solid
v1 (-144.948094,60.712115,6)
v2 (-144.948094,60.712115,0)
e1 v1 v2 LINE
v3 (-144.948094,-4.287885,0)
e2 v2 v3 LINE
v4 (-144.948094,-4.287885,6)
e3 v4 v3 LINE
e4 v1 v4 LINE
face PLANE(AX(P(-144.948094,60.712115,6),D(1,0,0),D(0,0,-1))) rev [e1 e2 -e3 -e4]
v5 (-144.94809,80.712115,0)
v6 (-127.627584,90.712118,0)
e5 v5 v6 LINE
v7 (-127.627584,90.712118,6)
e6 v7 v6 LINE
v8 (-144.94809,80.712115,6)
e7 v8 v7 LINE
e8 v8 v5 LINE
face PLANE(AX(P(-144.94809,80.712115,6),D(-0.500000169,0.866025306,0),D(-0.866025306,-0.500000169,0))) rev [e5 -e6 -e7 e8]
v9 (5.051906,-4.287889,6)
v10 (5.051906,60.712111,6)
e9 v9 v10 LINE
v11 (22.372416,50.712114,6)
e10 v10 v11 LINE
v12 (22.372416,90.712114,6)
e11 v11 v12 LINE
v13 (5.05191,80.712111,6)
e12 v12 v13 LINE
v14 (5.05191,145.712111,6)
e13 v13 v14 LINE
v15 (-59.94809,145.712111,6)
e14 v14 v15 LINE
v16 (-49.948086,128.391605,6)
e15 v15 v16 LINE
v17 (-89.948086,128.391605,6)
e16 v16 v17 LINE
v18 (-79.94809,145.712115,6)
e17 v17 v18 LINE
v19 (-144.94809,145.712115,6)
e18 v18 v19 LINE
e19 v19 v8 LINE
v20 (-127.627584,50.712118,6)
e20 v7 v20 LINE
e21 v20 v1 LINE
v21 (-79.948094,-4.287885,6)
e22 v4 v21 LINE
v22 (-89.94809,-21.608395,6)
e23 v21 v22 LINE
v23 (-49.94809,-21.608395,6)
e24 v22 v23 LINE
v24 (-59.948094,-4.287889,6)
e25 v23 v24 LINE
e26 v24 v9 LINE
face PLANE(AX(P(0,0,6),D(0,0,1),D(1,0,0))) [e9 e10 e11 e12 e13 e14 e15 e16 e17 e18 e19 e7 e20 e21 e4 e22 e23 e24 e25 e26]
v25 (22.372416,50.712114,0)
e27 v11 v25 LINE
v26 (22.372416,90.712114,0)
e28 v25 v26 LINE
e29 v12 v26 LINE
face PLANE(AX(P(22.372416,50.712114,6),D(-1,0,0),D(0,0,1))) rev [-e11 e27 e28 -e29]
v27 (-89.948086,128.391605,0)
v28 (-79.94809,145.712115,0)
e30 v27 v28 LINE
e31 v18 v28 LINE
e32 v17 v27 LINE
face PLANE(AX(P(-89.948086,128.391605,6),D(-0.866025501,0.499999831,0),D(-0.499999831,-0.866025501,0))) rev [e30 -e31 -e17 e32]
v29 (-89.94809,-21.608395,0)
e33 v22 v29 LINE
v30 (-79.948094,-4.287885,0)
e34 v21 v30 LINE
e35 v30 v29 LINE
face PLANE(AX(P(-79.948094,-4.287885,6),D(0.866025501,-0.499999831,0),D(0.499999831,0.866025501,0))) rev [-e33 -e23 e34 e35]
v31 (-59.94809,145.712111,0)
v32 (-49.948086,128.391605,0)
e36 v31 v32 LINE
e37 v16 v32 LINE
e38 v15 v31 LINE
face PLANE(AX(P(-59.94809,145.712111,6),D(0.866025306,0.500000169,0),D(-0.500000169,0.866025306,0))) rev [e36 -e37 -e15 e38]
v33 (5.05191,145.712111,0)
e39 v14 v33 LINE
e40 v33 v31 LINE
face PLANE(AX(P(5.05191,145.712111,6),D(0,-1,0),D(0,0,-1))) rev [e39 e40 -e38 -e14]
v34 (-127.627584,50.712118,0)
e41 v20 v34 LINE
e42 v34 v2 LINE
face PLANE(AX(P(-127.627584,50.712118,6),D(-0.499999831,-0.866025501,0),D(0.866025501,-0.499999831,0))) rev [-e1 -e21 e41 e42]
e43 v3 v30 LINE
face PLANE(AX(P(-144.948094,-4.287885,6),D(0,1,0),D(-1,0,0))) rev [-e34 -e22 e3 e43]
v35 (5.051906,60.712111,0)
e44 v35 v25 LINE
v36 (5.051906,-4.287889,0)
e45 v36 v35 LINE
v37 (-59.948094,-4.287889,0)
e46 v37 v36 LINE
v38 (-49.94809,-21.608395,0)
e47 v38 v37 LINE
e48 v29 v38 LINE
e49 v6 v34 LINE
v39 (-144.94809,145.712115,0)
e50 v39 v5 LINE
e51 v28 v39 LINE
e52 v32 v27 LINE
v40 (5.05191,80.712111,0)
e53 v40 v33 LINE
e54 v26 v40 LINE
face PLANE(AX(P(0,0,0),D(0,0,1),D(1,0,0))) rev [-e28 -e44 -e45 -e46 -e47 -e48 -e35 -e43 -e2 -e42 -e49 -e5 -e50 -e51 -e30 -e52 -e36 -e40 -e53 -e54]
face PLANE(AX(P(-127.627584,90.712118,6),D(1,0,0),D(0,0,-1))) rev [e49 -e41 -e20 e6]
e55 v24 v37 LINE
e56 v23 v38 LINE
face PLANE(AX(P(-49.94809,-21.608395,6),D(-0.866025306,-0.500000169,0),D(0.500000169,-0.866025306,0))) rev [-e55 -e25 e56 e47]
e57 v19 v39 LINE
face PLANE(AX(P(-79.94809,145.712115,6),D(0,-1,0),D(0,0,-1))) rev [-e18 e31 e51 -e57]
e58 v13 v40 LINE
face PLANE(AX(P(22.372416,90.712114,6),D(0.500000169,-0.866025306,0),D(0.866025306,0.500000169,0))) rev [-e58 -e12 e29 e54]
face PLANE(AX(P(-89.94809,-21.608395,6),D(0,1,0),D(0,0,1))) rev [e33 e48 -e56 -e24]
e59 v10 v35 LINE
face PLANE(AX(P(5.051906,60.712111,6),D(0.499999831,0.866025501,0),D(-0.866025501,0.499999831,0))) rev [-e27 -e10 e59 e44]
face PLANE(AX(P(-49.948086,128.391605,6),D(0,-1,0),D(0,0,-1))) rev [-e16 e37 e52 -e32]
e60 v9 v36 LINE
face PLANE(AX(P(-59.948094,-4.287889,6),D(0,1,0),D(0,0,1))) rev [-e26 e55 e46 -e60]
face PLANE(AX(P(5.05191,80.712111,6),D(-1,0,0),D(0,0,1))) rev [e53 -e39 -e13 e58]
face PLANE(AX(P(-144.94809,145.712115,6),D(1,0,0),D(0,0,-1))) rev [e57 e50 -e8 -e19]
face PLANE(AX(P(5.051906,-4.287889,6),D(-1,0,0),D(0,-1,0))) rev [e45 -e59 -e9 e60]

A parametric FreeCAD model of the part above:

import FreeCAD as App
import Part
import Sketcher

V = App.Vector
Q = App.Units.Quantity


def add_polygon(sketch, points):
    """Adds a closed chain of lines whose ends are joined by coincident constraints."""
    first, n = sketch.GeometryCount, len(points)
    for a, b in zip(points, points[1:] + points[:1]):
        sketch.addGeometry(Part.LineSegment(App.Vector(*a, 0), App.Vector(*b, 0)), False)
    for i in range(n):
        sketch.addConstraint(Sketcher.Constraint("Coincident", first + i, 2, first + (i + 1) % n, 1))

doc = App.newDocument("Part")
params = doc.addObject("Spreadsheet::Sheet", "Params")
for row, (alias, value) in enumerate([
    ("sketch1_width", "40 mm"),
    ("sketch1_width2", "65 mm"),
    ("sketch1_length", "20 mm"),
    ("pad1_length", "6 mm"),
], start=1):
    params.set(f"A{row}", alias)
    params.set(f"B{row}", "=" + value)
    params.setAlias(f"B{row}", alias)

body = doc.addObject("PartDesign::Body", "Body")

sketch1 = body.newObject("Sketcher::SketchObject", "Sketch")
sketch1.AttachmentSupport = (doc.getObject("XY_Plane"), [""])
sketch1.MapMode = "FlatFace"
add_polygon(sketch1, [(-90, -22), (-50, -22), (-60, -4), (5, -4), (5, 61), (22, 51), (22, 91), (5, 81), (5, 146), (-60, 146), (-50, 128), (-90, 128), (-80, 146), (-145, 146), (-145, 81), (-128, 91), (-128, 51), (-145, 61), (-145, -4), (-80, -4)])
sketch1.addConstraint(Sketcher.Constraint("Horizontal", 0))
sketch1.addConstraint(Sketcher.Constraint("Horizontal", 2))
sketch1.addConstraint(Sketcher.Constraint("Vertical", 3))
sketch1.addConstraint(Sketcher.Constraint("Vertical", 5))
sketch1.addConstraint(Sketcher.Constraint("Vertical", 7))
sketch1.addConstraint(Sketcher.Constraint("Horizontal", 8))
sketch1.addConstraint(Sketcher.Constraint("Horizontal", 10))
sketch1.addConstraint(Sketcher.Constraint("Horizontal", 12))
sketch1.addConstraint(Sketcher.Constraint("Vertical", 13))
sketch1.addConstraint(Sketcher.Constraint("Vertical", 15))
sketch1.addConstraint(Sketcher.Constraint("Vertical", 17))
sketch1.addConstraint(Sketcher.Constraint("Horizontal", 18))
sketch1.addConstraint(Sketcher.Constraint("Perpendicular", 1, 6))
sketch1.addConstraint(Sketcher.Constraint("Perpendicular", 6, 9))
sketch1.addConstraint(Sketcher.Constraint("Perpendicular", 4, 11))
sketch1.addConstraint(Sketcher.Constraint("Perpendicular", 9, 14))
sketch1.addConstraint(Sketcher.Constraint("Perpendicular", 11, 16))
sketch1.addConstraint(Sketcher.Constraint("Perpendicular", 16, 19))
sketch1.addConstraint(Sketcher.Constraint("Equal", 2, 8))
sketch1.addConstraint(Sketcher.Constraint("Equal", 0, 10))
sketch1.addConstraint(Sketcher.Constraint("Equal", 8, 12))
sketch1.addConstraint(Sketcher.Constraint("Equal", 12, 18))
sketch1.addConstraint(Sketcher.Constraint("Equal", 18, 3))
sketch1.addConstraint(Sketcher.Constraint("Equal", 10, 5))
sketch1.addConstraint(Sketcher.Constraint("Equal", 3, 7))
sketch1.addConstraint(Sketcher.Constraint("Equal", 7, 13))
sketch1.addConstraint(Sketcher.Constraint("Equal", 5, 15))
sketch1.addConstraint(Sketcher.Constraint("Equal", 13, 17))
sketch1.addConstraint(Sketcher.Constraint("Equal", 1, 4))
sketch1.addConstraint(Sketcher.Constraint("Equal", 4, 6))
sketch1.addConstraint(Sketcher.Constraint("Equal", 6, 9))
sketch1.addConstraint(Sketcher.Constraint("Equal", 9, 11))
sketch1.addConstraint(Sketcher.Constraint("Equal", 11, 14))
sketch1.addConstraint(Sketcher.Constraint("DistanceX", 0, 1, 0, 2, Q("40 mm")))
sketch1.addConstraint(Sketcher.Constraint("DistanceX", 2, 1, 2, 2, Q("65 mm")))
sketch1.addConstraint(Sketcher.Constraint("Angle", 1, Q("120.000011 deg")))
sketch1.addConstraint(Sketcher.Constraint("Angle", 4, Q("-29.999989 deg")))
sketch1.addConstraint(Sketcher.Constraint("Distance", 1, Q("20 mm")))
sketch1.addConstraint(Sketcher.Constraint("DistanceX", 0, 2, -1, 1, Q("49.94809 mm")))
sketch1.addConstraint(Sketcher.Constraint("DistanceY", 1, 2, -1, 1, Q("4.287889 mm")))
sketch1.setExpression("Constraints[53]", "Params.sketch1_width")
sketch1.setExpression("Constraints[54]", "Params.sketch1_width2")
sketch1.setExpression("Constraints[57]", "Params.sketch1_length")
pad1 = body.newObject("PartDesign::Pad", "Pad")
pad1.Profile = sketch1
pad1.setExpression("Length", "Params.pad1_length")

doc.recompute()
